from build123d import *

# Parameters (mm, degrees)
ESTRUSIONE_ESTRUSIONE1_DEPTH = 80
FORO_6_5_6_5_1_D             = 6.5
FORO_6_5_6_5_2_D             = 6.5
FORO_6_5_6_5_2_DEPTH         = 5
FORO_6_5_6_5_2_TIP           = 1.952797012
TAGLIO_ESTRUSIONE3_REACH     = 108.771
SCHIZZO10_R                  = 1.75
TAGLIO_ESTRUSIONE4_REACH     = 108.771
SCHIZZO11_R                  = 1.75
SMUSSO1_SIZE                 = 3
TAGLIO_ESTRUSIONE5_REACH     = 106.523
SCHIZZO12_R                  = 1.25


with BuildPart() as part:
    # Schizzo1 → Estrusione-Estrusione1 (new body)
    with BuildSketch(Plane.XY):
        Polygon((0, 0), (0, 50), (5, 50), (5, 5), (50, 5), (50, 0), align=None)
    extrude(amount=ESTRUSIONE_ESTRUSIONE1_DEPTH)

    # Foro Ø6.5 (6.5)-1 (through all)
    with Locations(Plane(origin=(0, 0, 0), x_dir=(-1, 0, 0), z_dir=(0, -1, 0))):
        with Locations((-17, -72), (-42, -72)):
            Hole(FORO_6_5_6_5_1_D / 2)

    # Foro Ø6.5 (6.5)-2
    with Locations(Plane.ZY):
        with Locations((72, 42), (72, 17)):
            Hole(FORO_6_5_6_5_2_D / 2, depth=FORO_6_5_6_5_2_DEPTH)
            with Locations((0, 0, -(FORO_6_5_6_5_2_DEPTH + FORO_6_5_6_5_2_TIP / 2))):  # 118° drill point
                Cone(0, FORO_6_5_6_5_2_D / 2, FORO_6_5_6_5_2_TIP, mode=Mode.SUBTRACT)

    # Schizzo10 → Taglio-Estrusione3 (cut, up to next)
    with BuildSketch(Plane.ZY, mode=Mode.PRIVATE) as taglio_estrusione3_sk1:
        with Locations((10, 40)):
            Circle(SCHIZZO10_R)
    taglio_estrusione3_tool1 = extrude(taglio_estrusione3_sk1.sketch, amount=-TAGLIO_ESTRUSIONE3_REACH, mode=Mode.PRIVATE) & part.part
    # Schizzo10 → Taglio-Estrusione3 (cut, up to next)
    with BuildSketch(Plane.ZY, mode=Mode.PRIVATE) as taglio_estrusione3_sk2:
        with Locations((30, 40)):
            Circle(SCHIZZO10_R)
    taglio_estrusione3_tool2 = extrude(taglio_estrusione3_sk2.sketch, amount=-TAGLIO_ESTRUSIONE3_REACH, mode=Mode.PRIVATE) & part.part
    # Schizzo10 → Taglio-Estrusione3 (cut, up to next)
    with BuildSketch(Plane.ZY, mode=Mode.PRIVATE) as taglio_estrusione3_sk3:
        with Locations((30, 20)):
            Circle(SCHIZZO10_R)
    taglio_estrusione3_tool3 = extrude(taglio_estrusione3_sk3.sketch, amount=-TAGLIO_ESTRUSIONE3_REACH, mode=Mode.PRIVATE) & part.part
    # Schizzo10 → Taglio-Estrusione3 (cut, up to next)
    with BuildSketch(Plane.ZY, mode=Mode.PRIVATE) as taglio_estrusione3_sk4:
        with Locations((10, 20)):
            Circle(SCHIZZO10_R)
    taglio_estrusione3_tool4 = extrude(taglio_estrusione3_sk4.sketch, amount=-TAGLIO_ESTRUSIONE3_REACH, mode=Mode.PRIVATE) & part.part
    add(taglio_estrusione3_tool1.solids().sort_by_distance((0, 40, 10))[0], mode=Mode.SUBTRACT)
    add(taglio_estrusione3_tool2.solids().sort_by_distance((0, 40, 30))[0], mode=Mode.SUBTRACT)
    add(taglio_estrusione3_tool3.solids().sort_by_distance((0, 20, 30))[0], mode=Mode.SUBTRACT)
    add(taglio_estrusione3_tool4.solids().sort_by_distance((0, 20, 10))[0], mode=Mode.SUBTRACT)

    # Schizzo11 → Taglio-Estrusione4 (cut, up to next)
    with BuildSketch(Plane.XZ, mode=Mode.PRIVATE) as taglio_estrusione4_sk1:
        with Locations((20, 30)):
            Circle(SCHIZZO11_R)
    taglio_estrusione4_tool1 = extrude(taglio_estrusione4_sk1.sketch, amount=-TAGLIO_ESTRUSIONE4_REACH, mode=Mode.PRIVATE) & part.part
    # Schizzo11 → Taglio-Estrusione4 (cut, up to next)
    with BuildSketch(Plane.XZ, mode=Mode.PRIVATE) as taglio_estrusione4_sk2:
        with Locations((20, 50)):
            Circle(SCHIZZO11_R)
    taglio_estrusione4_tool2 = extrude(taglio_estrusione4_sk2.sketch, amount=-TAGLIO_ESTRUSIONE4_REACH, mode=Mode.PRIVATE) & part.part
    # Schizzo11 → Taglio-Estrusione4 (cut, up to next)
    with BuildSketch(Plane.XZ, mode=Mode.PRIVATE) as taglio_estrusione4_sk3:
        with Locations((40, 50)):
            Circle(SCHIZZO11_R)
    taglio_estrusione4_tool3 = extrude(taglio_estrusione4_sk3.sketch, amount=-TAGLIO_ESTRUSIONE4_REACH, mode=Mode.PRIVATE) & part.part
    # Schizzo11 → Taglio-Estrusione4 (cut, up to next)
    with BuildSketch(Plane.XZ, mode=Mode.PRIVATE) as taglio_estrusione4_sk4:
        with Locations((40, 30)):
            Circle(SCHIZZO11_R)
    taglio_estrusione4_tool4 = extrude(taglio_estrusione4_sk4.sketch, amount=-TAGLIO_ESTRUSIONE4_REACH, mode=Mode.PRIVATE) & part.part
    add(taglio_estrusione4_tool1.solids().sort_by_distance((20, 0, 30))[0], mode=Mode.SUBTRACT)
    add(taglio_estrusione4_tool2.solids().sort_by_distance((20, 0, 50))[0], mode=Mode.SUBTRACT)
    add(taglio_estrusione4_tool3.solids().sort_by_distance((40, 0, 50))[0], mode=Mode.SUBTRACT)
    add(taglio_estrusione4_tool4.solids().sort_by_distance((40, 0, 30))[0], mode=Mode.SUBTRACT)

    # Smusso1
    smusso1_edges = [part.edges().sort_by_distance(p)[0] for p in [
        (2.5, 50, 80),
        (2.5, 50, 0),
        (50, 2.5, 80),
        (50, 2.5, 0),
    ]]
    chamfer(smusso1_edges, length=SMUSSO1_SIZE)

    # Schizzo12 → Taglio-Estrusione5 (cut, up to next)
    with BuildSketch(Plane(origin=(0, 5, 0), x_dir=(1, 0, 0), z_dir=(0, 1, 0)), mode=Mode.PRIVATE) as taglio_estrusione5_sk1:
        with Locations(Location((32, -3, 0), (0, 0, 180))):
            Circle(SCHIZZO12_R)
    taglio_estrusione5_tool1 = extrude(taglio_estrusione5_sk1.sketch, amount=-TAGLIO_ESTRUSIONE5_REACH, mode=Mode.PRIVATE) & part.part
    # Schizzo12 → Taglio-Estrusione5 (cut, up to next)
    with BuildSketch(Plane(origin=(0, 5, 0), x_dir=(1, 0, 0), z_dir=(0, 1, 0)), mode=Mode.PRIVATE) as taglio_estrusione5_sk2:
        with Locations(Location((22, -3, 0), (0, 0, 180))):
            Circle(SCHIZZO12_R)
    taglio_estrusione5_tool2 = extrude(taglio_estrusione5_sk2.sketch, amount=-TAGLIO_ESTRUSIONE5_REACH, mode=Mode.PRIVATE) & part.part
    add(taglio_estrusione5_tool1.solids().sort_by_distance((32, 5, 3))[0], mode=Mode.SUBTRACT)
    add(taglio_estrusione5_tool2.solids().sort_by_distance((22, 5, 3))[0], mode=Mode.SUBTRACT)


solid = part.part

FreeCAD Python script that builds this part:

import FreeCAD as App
import Part
import Sketcher


def edges_at(feature, points):
    """Names of the edges that pass closest to the given points."""
    edges = feature.Shape.Edges
    near = lambda p: min(range(len(edges)), key=lambda i: edges[i].distToShape(Part.Vertex(*p))[0])
    return sorted({f"Edge{near(p) + 1}" for p in points})

doc = App.newDocument("Part")
params = doc.addObject("Spreadsheet::Sheet", "Params")
for row, (alias, value) in enumerate([
    ("sketch1_width", "50 mm"),
    ("sketch1_width2", "45 mm"),
    ("pad1_length", "80 mm"),
    ("sketch2_diameter", "6.5 mm"),
    ("hole_diameter", "6.5 mm"),
    ("sketch3_diameter", "6.5 mm"),
    ("hole2_diameter", "6.5 mm"),
    ("hole2_depth", "5 mm"),
    ("sketch4_diameter", "3.5 mm"),
    ("sketch5_diameter", "3.5 mm"),
    ("sketch6_diameter", "3.5 mm"),
    ("sketch7_diameter", "3.5 mm"),
    ("sketch8_diameter", "3.5 mm"),
    ("sketch9_diameter", "3.5 mm"),
    ("sketch10_diameter", "3.5 mm"),
    ("sketch11_diameter", "3.5 mm"),
    ("chamfer_size", "3 mm"),
    ("sketch12_diameter", "2.5 mm"),
    ("sketch13_diameter", "2.5 mm"),
], start=1):
    params.set(f"A{row}", alias)
    params.set(f"B{row}", "=" + value)
    params.setAlias(f"B{row}", alias)

body = doc.addObject("PartDesign::Body", "Body")

# Sketch on XY plane
sketch1 = doc.addObject("Sketcher::SketchObject", "Sketch")
body.addObject(sketch1)
sketch1.AttachmentSupport = (doc.XY_Plane, [""])
sketch1.MapMode = "FlatFace"
sketch1.addGeometry([
    Part.LineSegment(App.Vector(0, 50, 0), App.Vector(0, 0, 0)),  # 0
    Part.LineSegment(App.Vector(0, 0, 0), App.Vector(50, 0, 0)),  # 1
    Part.LineSegment(App.Vector(50, 0, 0), App.Vector(50, 5, 0)),  # 2
    Part.LineSegment(App.Vector(50, 5, 0), App.Vector(5, 5, 0)),  # 3
    Part.LineSegment(App.Vector(5, 5, 0), App.Vector(5, 50, 0)),  # 4
    Part.LineSegment(App.Vector(5, 50, 0), App.Vector(0, 50, 0)),  # 5
], False)
sketch1.addConstraint([
    Sketcher.Constraint("Coincident", 0, 2, 1, 1),
    Sketcher.Constraint("Coincident", 1, 2, 2, 1),
    Sketcher.Constraint("Coincident", 2, 2, 3, 1),
    Sketcher.Constraint("Coincident", 3, 2, 4, 1),
    Sketcher.Constraint("Coincident", 4, 2, 5, 1),
    Sketcher.Constraint("Coincident", 5, 2, 0, 1),
    Sketcher.Constraint("Vertical", 0),
    Sketcher.Constraint("Horizontal", 1),
    Sketcher.Constraint("Vertical", 2),
    Sketcher.Constraint("Horizontal", 3),
    Sketcher.Constraint("Vertical", 4),
    Sketcher.Constraint("Horizontal", 5),
    Sketcher.Constraint("Coincident", 0, 2, -1, 1),
    Sketcher.Constraint("Equal", 1, 0),
    Sketcher.Constraint("Equal", 5, 2),
    Sketcher.Constraint("DistanceX", 1, 1, 1, 2, 50.0),
    Sketcher.Constraint("DistanceX", 3, 2, 3, 1, 45.0),
])
sketch1.setExpression("Constraints[15]", "Params.sketch1_width")
sketch1.setExpression("Constraints[16]", "Params.sketch1_width2")
pad1 = doc.addObject("PartDesign::Pad", "Pad")
body.addObject(pad1)
pad1.Profile = sketch1
pad1.setExpression("Length", "Params.pad1_length")

# Sketch on XZ plane
sketch2 = doc.addObject("Sketcher::SketchObject", "Sketch001")
body.addObject(sketch2)
sketch2.AttachmentSupport = (doc.XZ_Plane, [""])
sketch2.MapMode = "FlatFace"
sketch2.addGeometry([
    Part.Circle(App.Vector(17, 72, 0), App.Vector(0, 0, 1), 3.2),
    Part.Circle(App.Vector(42, 72, 0), App.Vector(0, 0, 1), 3.2),
], False)
sketch2.addConstraint([
    Sketcher.Constraint("Equal", 0, 1),
    Sketcher.Constraint("Horizontal", 0, 3, 1, 3),
    Sketcher.Constraint("Diameter", 0, 6.5),
    Sketcher.Constraint("DistanceX", -1, 1, 0, 3, 17.0),
    Sketcher.Constraint("DistanceY", -1, 1, 0, 3, 72.0),
    Sketcher.Constraint("DistanceX", -1, 1, 1, 3, 42.0),
])
sketch2.setExpression("Constraints[2]", "Params.sketch2_diameter")
doc.recompute()
hole = doc.addObject("PartDesign::Hole", "Hole")
body.addObject(hole)
hole.Profile = sketch2
hole.ThreadType = "None"
hole.setExpression("Diameter", "Params.hole_diameter")
hole.DepthType = "ThroughAll"

# Sketch on YZ plane
sketch3 = doc.addObject("Sketcher::SketchObject", "Sketch002")
body.addObject(sketch3)
sketch3.AttachmentSupport = (doc.YZ_Plane, [""])
sketch3.MapMode = "FlatFace"
sketch3.addGeometry([
    Part.Circle(App.Vector(42, 72, 0), App.Vector(0, 0, 1), 3.2),
    Part.Circle(App.Vector(17, 72, 0), App.Vector(0, 0, 1), 3.2),
], False)
sketch3.addConstraint([
    Sketcher.Constraint("Equal", 0, 1),
    Sketcher.Constraint("Horizontal", 0, 3, 1, 3),
    Sketcher.Constraint("Diameter", 0, 6.5),
    Sketcher.Constraint("DistanceX", -1, 1, 0, 3, 42.0),
    Sketcher.Constraint("DistanceY", -1, 1, 0, 3, 72.0),
    Sketcher.Constraint("DistanceX", -1, 1, 1, 3, 17.0),
])
sketch3.setExpression("Constraints[2]", "Params.sketch3_diameter")
doc.recompute()
hole2 = doc.addObject("PartDesign::Hole", "Hole001")
body.addObject(hole2)
hole2.Profile = sketch3
hole2.ThreadType = "None"
hole2.setExpression("Diameter", "Params.hole2_diameter")
hole2.DepthType = "Dimension"
hole2.setExpression("Depth", "Params.hole2_depth")
hole2.DrillPoint = "Angled"
hole2.DrillPointAngle = 118
hole2.Reversed = True

# Sketch on YZ plane
sketch4 = doc.addObject("Sketcher::SketchObject", "Sketch003")
body.addObject(sketch4)
sketch4.AttachmentSupport = (doc.YZ_Plane, [""])
sketch4.MapMode = "FlatFace"
sketch4.addGeometry(Part.Circle(App.Vector(40, 10, 0), App.Vector(0, 0, 1), 1.8), False)
sketch4.addConstraint([
    Sketcher.Constraint("Diameter", 0, 3.5),
    Sketcher.Constraint("DistanceX", -1, 1, 0, 3, 40.0),
    Sketcher.Constraint("DistanceY", -1, 1, 0, 3, 10.0),
])
sketch4.setExpression("Constraints[0]", "Params.sketch4_diameter")
pocket1 = doc.addObject("PartDesign::Pocket", "Pocket")
body.addObject(pocket1)
pocket1.Profile = sketch4
pocket1.Type = "UpToFirst"
pocket1.Reversed = True

# Sketch on YZ plane
sketch5 = doc.addObject("Sketcher::SketchObject", "Sketch004")
body.addObject(sketch5)
sketch5.AttachmentSupport = (doc.YZ_Plane, [""])
sketch5.MapMode = "FlatFace"
sketch5.addGeometry(Part.Circle(App.Vector(40, 30, 0), App.Vector(0, 0, 1), 1.8), False)
sketch5.addConstraint([
    Sketcher.Constraint("Diameter", 0, 3.5),
    Sketcher.Constraint("DistanceX", -1, 1, 0, 3, 40.0),
    Sketcher.Constraint("DistanceY", -1, 1, 0, 3, 30.0),
])
sketch5.setExpression("Constraints[0]", "Params.sketch5_diameter")
pocket2 = doc.addObject("PartDesign::Pocket", "Pocket001")
body.addObject(pocket2)
pocket2.Profile = sketch5
pocket2.Type = "UpToFirst"
pocket2.Reversed = True

# Sketch on YZ plane
sketch6 = doc.addObject("Sketcher::SketchObject", "Sketch005")
body.addObject(sketch6)
sketch6.AttachmentSupport = (doc.YZ_Plane, [""])
sketch6.MapMode = "FlatFace"
sketch6.addGeometry(Part.Circle(App.Vector(20, 30, 0), App.Vector(0, 0, 1), 1.8), False)
sketch6.addConstraint([
    Sketcher.Constraint("Diameter", 0, 3.5),
    Sketcher.Constraint("DistanceX", -1, 1, 0, 3, 20.0),
    Sketcher.Constraint("DistanceY", -1, 1, 0, 3, 30.0),
])
sketch6.setExpression("Constraints[0]", "Params.sketch6_diameter")
pocket3 = doc.addObject("PartDesign::Pocket", "Pocket002")
body.addObject(pocket3)
pocket3.Profile = sketch6
pocket3.Type = "UpToFirst"
pocket3.Reversed = True

# Sketch on YZ plane
sketch7 = doc.addObject("Sketcher::SketchObject", "Sketch006")
body.addObject(sketch7)
sketch7.AttachmentSupport = (doc.YZ_Plane, [""])
sketch7.MapMode = "FlatFace"
sketch7.addGeometry(Part.Circle(App.Vector(20, 10, 0), App.Vector(0, 0, 1), 1.8), False)
sketch7.addConstraint([
    Sketcher.Constraint("Diameter", 0, 3.5),
    Sketcher.Constraint("DistanceX", -1, 1, 0, 3, 20.0),
    Sketcher.Constraint("DistanceY", -1, 1, 0, 3, 10.0),
])
sketch7.setExpression("Constraints[0]", "Params.sketch7_diameter")
pocket4 = doc.addObject("PartDesign::Pocket", "Pocket003")
body.addObject(pocket4)
pocket4.Profile = sketch7
pocket4.Type = "UpToFirst"
pocket4.Reversed = True

# Sketch on XZ plane
sketch8 = doc.addObject("Sketcher::SketchObject", "Sketch007")
body.addObject(sketch8)
sketch8.AttachmentSupport = (doc.XZ_Plane, [""])
sketch8.MapMode = "FlatFace"
sketch8.addGeometry(Part.Circle(App.Vector(20, 30, 0), App.Vector(0, 0, 1), 1.8), False)
sketch8.addConstraint([
    Sketcher.Constraint("Diameter", 0, 3.5),
    Sketcher.Constraint("DistanceX", -1, 1, 0, 3, 20.0),
    Sketcher.Constraint("DistanceY", -1, 1, 0, 3, 30.0),
])
sketch8.setExpression("Constraints[0]", "Params.sketch8_diameter")
pocket5 = doc.addObject("PartDesign::Pocket", "Pocket004")
body.addObject(pocket5)
pocket5.Profile = sketch8
pocket5.Type = "UpToFirst"

# Sketch on XZ plane
sketch9 = doc.addObject("Sketcher::SketchObject", "Sketch008")
body.addObject(sketch9)
sketch9.AttachmentSupport = (doc.XZ_Plane, [""])
sketch9.MapMode = "FlatFace"
sketch9.addGeometry(Part.Circle(App.Vector(20, 50, 0), App.Vector(0, 0, 1), 1.8), False)
sketch9.addConstraint([
    Sketcher.Constraint("Diameter", 0, 3.5),
    Sketcher.Constraint("DistanceX", -1, 1, 0, 3, 20.0),
    Sketcher.Constraint("DistanceY", -1, 1, 0, 3, 50.0),
])
sketch9.setExpression("Constraints[0]", "Params.sketch9_diameter")
pocket6 = doc.addObject("PartDesign::Pocket", "Pocket005")
body.addObject(pocket6)
pocket6.Profile = sketch9
pocket6.Type = "UpToFirst"

# Sketch on XZ plane
sketch10 = doc.addObject("Sketcher::SketchObject", "Sketch009")
body.addObject(sketch10)
sketch10.AttachmentSupport = (doc.XZ_Plane, [""])
sketch10.MapMode = "FlatFace"
sketch10.addGeometry(Part.Circle(App.Vector(40, 50, 0), App.Vector(0, 0, 1), 1.8), False)
sketch10.addConstraint([
    Sketcher.Constraint("Diameter", 0, 3.5),
    Sketcher.Constraint("DistanceX", -1, 1, 0, 3, 40.0),
    Sketcher.Constraint("DistanceY", -1, 1, 0, 3, 50.0),
])
sketch10.setExpression("Constraints[0]", "Params.sketch10_diameter")
pocket7 = doc.addObject("PartDesign::Pocket", "Pocket006")
body.addObject(pocket7)
pocket7.Profile = sketch10
pocket7.Type = "UpToFirst"

# Sketch on XZ plane
sketch11 = doc.addObject("Sketcher::SketchObject", "Sketch010")
body.addObject(sketch11)
sketch11.AttachmentSupport = (doc.XZ_Plane, [""])
sketch11.MapMode = "FlatFace"
sketch11.addGeometry(Part.Circle(App.Vector(40, 30, 0), App.Vector(0, 0, 1), 1.8), False)
sketch11.addConstraint([
    Sketcher.Constraint("Diameter", 0, 3.5),
    Sketcher.Constraint("DistanceX", -1, 1, 0, 3, 40.0),
    Sketcher.Constraint("DistanceY", -1, 1, 0, 3, 30.0),
])
sketch11.setExpression("Constraints[0]", "Params.sketch11_diameter")
pocket8 = doc.addObject("PartDesign::Pocket", "Pocket007")
body.addObject(pocket8)
pocket8.Profile = sketch11
pocket8.Type = "UpToFirst"
doc.recompute()

chamfer = doc.addObject("PartDesign::Chamfer", "Chamfer")
body.addObject(chamfer)
chamfer.Base = (pocket8, edges_at(pocket8, [
    (2.5, 50, 80),
    (2.5, 50, 0),
    (50, 2.5, 80),
    (50, 2.5, 0),
]))
chamfer.setExpression("Size", "Params.chamfer_size")

# Sketch on XZ plane
sketch12 = doc.addObject("Sketcher::SketchObject", "Sketch011")
body.addObject(sketch12)
sketch12.AttachmentSupport = (doc.XZ_Plane, [""])
sketch12.MapMode = "FlatFace"
sketch12.AttachmentOffset = App.Placement(App.Vector(0, 0, -5), App.Rotation())
sketch12.addGeometry(Part.Circle(App.Vector(32, 3, 0), App.Vector(0, 0, 1), 1.2), False)
sketch12.addConstraint([
    Sketcher.Constraint("Diameter", 0, 2.5),
    Sketcher.Constraint("DistanceX", -1, 1, 0, 3, 32.0),
    Sketcher.Constraint("DistanceY", -1, 1, 0, 3, 3.0),
])
sketch12.setExpression("Constraints[0]", "Params.sketch12_diameter")
pocket9 = doc.addObject("PartDesign::Pocket", "Pocket008")
body.addObject(pocket9)
pocket9.Profile = sketch12
pocket9.Type = "UpToFirst"
pocket9.Reversed = True

# Sketch on XZ plane
sketch13 = doc.addObject("Sketcher::SketchObject", "Sketch012")
body.addObject(sketch13)
sketch13.AttachmentSupport = (doc.XZ_Plane, [""])
sketch13.MapMode = "FlatFace"
sketch13.AttachmentOffset = App.Placement(App.Vector(0, 0, -5), App.Rotation())
sketch13.addGeometry(Part.Circle(App.Vector(22, 3, 0), App.Vector(0, 0, 1), 1.2), False)
sketch13.addConstraint([
    Sketcher.Constraint("Diameter", 0, 2.5),
    Sketcher.Constraint("DistanceX", -1, 1, 0, 3, 22.0),
    Sketcher.Constraint("DistanceY", -1, 1, 0, 3, 3.0),
])
sketch13.setExpression("Constraints[0]", "Params.sketch13_diameter")
pocket10 = doc.addObject("PartDesign::Pocket", "Pocket009")
body.addObject(pocket10)
pocket10.Profile = sketch13
pocket10.Type = "UpToFirst"
pocket10.Reversed = True

doc.recompute()
